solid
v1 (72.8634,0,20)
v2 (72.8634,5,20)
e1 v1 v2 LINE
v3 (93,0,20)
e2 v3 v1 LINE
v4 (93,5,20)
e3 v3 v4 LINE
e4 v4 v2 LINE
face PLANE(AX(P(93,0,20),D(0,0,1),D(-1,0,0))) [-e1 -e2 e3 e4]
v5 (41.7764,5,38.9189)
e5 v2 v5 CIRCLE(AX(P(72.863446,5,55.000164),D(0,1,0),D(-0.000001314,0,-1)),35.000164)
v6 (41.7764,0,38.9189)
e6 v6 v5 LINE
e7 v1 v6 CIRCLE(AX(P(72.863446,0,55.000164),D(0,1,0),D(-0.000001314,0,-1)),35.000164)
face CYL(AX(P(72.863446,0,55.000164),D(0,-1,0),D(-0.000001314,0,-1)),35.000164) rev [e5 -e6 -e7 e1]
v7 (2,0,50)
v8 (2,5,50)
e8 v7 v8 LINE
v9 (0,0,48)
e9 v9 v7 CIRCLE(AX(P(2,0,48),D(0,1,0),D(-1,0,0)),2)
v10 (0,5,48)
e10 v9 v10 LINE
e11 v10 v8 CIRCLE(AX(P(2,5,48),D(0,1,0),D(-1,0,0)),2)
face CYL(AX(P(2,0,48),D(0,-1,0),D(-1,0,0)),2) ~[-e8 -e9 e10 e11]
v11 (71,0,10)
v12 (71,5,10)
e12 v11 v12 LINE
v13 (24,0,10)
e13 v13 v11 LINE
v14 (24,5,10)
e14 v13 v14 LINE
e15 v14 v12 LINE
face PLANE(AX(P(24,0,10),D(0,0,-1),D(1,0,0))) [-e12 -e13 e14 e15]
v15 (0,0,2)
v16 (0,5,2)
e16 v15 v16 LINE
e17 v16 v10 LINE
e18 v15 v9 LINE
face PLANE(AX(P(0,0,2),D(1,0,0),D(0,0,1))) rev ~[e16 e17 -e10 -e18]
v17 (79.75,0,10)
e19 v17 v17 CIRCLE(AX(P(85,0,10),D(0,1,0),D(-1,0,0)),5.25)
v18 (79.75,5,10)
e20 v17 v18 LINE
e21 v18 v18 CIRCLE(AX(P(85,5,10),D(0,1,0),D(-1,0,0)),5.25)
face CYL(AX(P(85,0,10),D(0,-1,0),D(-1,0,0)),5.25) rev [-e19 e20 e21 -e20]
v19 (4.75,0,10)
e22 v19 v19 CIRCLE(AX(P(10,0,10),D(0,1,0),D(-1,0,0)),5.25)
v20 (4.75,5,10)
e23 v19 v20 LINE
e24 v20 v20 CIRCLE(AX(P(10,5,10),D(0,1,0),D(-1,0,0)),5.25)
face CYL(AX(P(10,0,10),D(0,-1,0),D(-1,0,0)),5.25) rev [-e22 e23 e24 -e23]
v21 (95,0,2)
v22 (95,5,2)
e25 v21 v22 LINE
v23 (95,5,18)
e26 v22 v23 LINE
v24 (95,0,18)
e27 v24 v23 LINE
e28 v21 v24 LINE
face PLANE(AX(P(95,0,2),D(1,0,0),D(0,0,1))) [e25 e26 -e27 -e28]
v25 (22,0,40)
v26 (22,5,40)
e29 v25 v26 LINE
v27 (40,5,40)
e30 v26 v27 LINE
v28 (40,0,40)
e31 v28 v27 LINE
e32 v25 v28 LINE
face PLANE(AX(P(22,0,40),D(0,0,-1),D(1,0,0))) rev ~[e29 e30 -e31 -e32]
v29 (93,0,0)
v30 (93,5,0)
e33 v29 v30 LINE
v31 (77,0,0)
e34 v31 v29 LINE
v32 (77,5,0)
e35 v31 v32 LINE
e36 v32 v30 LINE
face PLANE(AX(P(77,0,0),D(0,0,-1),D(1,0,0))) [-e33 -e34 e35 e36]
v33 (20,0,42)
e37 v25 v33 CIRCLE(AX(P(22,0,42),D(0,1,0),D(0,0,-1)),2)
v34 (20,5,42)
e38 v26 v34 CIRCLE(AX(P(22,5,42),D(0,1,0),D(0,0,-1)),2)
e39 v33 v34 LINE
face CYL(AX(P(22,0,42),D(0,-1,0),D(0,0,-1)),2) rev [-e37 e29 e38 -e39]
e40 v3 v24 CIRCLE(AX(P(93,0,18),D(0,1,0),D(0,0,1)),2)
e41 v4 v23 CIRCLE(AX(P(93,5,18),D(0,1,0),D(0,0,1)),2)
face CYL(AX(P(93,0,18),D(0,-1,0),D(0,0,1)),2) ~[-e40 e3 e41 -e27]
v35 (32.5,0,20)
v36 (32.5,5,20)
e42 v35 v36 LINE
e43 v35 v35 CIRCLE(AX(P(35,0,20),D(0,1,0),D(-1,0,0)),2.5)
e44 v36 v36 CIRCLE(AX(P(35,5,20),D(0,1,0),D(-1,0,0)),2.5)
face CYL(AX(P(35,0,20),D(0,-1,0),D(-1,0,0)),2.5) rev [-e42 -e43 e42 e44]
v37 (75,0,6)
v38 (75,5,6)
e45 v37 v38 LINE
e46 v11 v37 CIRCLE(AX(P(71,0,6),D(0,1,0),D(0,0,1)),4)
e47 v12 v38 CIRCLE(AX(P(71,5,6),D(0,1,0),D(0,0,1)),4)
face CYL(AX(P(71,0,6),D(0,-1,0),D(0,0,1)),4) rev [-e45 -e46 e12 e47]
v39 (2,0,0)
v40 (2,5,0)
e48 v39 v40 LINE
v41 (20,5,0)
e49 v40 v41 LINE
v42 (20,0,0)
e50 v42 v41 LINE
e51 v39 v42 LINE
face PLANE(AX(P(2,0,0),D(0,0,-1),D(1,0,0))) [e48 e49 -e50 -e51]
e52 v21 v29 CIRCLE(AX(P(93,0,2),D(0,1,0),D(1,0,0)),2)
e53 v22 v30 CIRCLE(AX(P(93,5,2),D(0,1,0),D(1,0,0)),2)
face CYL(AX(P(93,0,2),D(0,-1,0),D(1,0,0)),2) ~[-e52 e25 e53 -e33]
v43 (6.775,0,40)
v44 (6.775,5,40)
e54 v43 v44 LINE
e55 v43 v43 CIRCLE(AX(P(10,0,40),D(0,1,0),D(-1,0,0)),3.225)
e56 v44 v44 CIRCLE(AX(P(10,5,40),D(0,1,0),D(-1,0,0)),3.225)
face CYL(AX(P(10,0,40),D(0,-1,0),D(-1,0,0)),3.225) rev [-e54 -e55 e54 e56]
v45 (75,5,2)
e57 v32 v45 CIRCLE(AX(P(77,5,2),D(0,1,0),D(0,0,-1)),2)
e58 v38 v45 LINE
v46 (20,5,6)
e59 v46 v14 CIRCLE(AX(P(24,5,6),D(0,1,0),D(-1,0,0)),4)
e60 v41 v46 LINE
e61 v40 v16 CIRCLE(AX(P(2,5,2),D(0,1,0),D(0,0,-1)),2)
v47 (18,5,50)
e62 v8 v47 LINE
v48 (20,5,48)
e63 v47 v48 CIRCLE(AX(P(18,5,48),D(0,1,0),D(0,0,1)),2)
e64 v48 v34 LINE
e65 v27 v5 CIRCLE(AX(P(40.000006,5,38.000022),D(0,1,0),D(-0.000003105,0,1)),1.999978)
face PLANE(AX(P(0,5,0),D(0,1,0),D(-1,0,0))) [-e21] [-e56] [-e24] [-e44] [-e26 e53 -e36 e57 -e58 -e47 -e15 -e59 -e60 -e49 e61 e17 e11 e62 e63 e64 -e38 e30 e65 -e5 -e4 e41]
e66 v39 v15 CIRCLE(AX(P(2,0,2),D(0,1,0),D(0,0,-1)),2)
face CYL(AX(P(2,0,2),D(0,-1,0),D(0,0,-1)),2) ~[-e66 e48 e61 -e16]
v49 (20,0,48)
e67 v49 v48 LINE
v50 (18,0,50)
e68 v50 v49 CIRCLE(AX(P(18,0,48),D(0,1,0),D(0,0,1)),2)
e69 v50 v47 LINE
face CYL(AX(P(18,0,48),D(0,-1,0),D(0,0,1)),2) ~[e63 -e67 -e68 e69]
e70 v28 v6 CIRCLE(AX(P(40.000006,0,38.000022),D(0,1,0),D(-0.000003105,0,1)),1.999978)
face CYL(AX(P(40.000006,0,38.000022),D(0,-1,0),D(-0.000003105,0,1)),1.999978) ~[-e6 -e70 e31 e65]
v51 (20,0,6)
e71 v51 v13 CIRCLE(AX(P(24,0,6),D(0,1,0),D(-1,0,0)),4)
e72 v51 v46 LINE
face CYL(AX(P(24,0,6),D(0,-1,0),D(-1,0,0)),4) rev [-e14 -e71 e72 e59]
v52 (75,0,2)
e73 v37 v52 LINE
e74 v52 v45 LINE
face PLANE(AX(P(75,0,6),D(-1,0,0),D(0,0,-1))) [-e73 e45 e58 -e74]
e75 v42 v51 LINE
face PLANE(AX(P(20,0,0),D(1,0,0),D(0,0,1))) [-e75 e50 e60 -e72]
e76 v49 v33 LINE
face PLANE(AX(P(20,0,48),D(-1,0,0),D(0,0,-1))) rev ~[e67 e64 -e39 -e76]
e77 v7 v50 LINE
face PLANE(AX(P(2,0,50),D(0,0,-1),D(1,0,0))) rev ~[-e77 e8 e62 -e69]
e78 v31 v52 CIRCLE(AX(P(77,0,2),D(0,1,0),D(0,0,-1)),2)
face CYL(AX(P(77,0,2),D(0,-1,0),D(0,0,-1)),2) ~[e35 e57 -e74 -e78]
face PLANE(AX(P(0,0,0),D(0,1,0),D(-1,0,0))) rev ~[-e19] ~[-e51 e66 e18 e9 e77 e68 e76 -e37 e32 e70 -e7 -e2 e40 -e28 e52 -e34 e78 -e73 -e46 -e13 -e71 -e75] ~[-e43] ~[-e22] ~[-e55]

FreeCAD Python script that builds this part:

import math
import FreeCAD as App
import Part
import Sketcher

doc = App.newDocument("Part")
body = doc.addObject("PartDesign::Body", "Body")

sketch1 = body.newObject("Sketcher::SketchObject", "Sketch")
sketch1.AttachmentSupport = (doc.getObject("XZ_Plane"), [""])
sketch1.MapMode = "FlatFace"
sketch1.addGeometry([
    Part.ArcOfCircle(Part.Circle(App.Vector(2, 2, 0), App.Vector(0, 0, 1), 2), math.radians(180), math.radians(270)),
    Part.LineSegment(App.Vector(0, 2, 0), App.Vector(0, 48, 0)),
    Part.ArcOfCircle(Part.Circle(App.Vector(2, 48, 0), App.Vector(0, 0, 1), 2), math.radians(90), math.radians(180)),
    Part.LineSegment(App.Vector(2, 50, 0), App.Vector(18, 50, 0)),
    Part.ArcOfCircle(Part.Circle(App.Vector(18, 48, 0), App.Vector(0, 0, 1), 2), math.radians(0), math.radians(90)),
    Part.LineSegment(App.Vector(20, 48, 0), App.Vector(20, 42, 0)),
    Part.ArcOfCircle(Part.Circle(App.Vector(22, 42, 0), App.Vector(0, 0, 1), 2), math.radians(180), math.radians(270)),
    Part.LineSegment(App.Vector(22, 40, 0), App.Vector(40, 40, 0)),
    Part.ArcOfCircle(Part.Circle(App.Vector(40, 38, 0), App.Vector(0, 0, 1), 2), math.radians(27), math.radians(90)),
    Part.ArcOfCircle(Part.Circle(App.Vector(72.9, 55, 0), App.Vector(0, 0, 1), 35), math.radians(-153), math.radians(-90)),
    Part.LineSegment(App.Vector(72.9, 20, 0), App.Vector(93, 20, 0)),
    Part.ArcOfCircle(Part.Circle(App.Vector(93, 18, 0), App.Vector(0, 0, 1), 2), math.radians(0), math.radians(90)),
    Part.LineSegment(App.Vector(95, 18, 0), App.Vector(95, 2, 0)),
    Part.ArcOfCircle(Part.Circle(App.Vector(93, 2, 0), App.Vector(0, 0, 1), 2), math.radians(-90), math.radians(0)),
    Part.LineSegment(App.Vector(93, 0, 0), App.Vector(77, 0, 0)),
    Part.ArcOfCircle(Part.Circle(App.Vector(77, 2, 0), App.Vector(0, 0, 1), 2), math.radians(180), math.radians(270)),
    Part.LineSegment(App.Vector(75, 2, 0), App.Vector(75, 6, 0)),
    Part.ArcOfCircle(Part.Circle(App.Vector(71, 6, 0), App.Vector(0, 0, 1), 4), math.radians(0), math.radians(90)),
    Part.LineSegment(App.Vector(71, 10, 0), App.Vector(24, 10, 0)),
    Part.ArcOfCircle(Part.Circle(App.Vector(24, 6, 0), App.Vector(0, 0, 1), 4), math.radians(90), math.radians(180)),
    Part.LineSegment(App.Vector(20, 6, 0), App.Vector(20, 0, 0)),
    Part.LineSegment(App.Vector(20, 0, 0), App.Vector(2, 0, 0)),
    Part.Circle(App.Vector(85, 10, 0), App.Vector(0, 0, 1), 5.2),
    Part.Circle(App.Vector(10, 10, 0), App.Vector(0, 0, 1), 5.2),
    Part.Circle(App.Vector(35, 20, 0), App.Vector(0, 0, 1), 2.5),
    Part.Circle(App.Vector(10, 40, 0), App.Vector(0, 0, 1), 3.2),
], False)
sketch1.addConstraint([
    Sketcher.Constraint("Tangent", 0, 1, 1, 1),
    Sketcher.Constraint("Tangent", 1, 2, 2, 2),
    Sketcher.Constraint("Tangent", 2, 1, 3, 1),
    Sketcher.Constraint("Tangent", 3, 2, 4, 2),
    Sketcher.Constraint("Tangent", 4, 1, 5, 1),
    Sketcher.Constraint("Tangent", 5, 2, 6, 1),
    Sketcher.Constraint("Tangent", 6, 2, 7, 1),
    Sketcher.Constraint("Tangent", 7, 2, 8, 2),
    Sketcher.Constraint("Tangent", 8, 1, 9, 1),
    Sketcher.Constraint("Tangent", 9, 2, 10, 1),
    Sketcher.Constraint("Tangent", 10, 2, 11, 2),
    Sketcher.Constraint("Tangent", 11, 1, 12, 1),
    Sketcher.Constraint("Tangent", 12, 2, 13, 2),
    Sketcher.Constraint("Tangent", 13, 1, 14, 1),
    Sketcher.Constraint("Tangent", 14, 2, 15, 2),
    Sketcher.Constraint("Tangent", 15, 1, 16, 1),
    Sketcher.Constraint("Tangent", 16, 2, 17, 1),
    Sketcher.Constraint("Tangent", 17, 2, 18, 1),
    Sketcher.Constraint("Tangent", 18, 2, 19, 1),
    Sketcher.Constraint("Tangent", 19, 2, 20, 1),
    Sketcher.Constraint("Coincident", 20, 2, 21, 1),
    Sketcher.Constraint("Tangent", 21, 2, 0, 2),
    Sketcher.Constraint("Vertical", 1),
    Sketcher.Constraint("Horizontal", 3),
    Sketcher.Constraint("Vertical", 5),
    Sketcher.Constraint("Horizontal", 7),
    Sketcher.Constraint("Horizontal", 10),
    Sketcher.Constraint("Vertical", 12),
    Sketcher.Constraint("Horizontal", 14),
    Sketcher.Constraint("Vertical", 16),
    Sketcher.Constraint("Horizontal", 18),
    Sketcher.Constraint("Vertical", 20),
    Sketcher.Constraint("Horizontal", 21),
    Sketcher.Constraint("Equal", 0, 2),
    Sketcher.Constraint("Equal", 2, 4),
    Sketcher.Constraint("Equal", 4, 6),
    Sketcher.Constraint("Equal", 6, 8),
    Sketcher.Constraint("Equal", 8, 11),
    Sketcher.Constraint("Equal", 11, 13),
    Sketcher.Constraint("Equal", 13, 15),
    Sketcher.Constraint("Equal", 17, 19),
    Sketcher.Constraint("Equal", 22, 23),
    Sketcher.Constraint("PointOnObject", 0, 1, -2),
    Sketcher.Constraint("PointOnObject", 13, 1, -1),
    Sketcher.Constraint("PointOnObject", 20, 2, -1),
    Sketcher.Constraint("Horizontal", 22, 3, 23, 3),
    Sketcher.Constraint("Horizontal", 25, 3, 6, 2),
    Sketcher.Constraint("Horizontal", 24, 3, 9, 2),
    Sketcher.Constraint("Horizontal", 23, 3, 17, 2),
    Sketcher.Constraint("Vertical", 23, 3, 25, 3),
    Sketcher.Constraint("Vertical", 5, 2, 19, 2),
    Sketcher.Constraint("Equal", 3, 14),
    Sketcher.Constraint("Equal", 7, 21),
    Sketcher.Constraint("Equal", 14, 12),
    Sketcher.Constraint("Equal", 5, 20),
    Sketcher.Constraint("Diameter", 24, 5.0),
    Sketcher.Constraint("Radius", 0, 2.0),
    Sketcher.Constraint("Radius", 9, 35.0),
    Sketcher.Constraint("Radius", 17, 4.0),
    Sketcher.Constraint("Diameter", 22, 10.5),
    Sketcher.Constraint("Diameter", 25, 6.45),
    Sketcher.Constraint("DistanceY", 16, 1, 16, 2, 4.0),
    Sketcher.Constraint("DistanceY", -1, 1, 9, 3, 55.0),
    Sketcher.Constraint("DistanceX", -1, 1, 23, 3, 10.0),
    Sketcher.Constraint("DistanceY", -1, 1, 2, 1, 50.0),
    Sketcher.Constraint("DistanceX", 6, 3, 15, 3, 55.0),
    Sketcher.Constraint("DistanceX", 24, 3, 8, 3, 5.0),
    Sketcher.Constraint("DistanceX", 22, 3, 11, 1, 10.0),
])
pad1 = body.newObject("PartDesign::Pad", "Pad")
pad1.Profile = sketch1
pad1.Length = 5
pad1.Reversed = True

doc.recompute()
